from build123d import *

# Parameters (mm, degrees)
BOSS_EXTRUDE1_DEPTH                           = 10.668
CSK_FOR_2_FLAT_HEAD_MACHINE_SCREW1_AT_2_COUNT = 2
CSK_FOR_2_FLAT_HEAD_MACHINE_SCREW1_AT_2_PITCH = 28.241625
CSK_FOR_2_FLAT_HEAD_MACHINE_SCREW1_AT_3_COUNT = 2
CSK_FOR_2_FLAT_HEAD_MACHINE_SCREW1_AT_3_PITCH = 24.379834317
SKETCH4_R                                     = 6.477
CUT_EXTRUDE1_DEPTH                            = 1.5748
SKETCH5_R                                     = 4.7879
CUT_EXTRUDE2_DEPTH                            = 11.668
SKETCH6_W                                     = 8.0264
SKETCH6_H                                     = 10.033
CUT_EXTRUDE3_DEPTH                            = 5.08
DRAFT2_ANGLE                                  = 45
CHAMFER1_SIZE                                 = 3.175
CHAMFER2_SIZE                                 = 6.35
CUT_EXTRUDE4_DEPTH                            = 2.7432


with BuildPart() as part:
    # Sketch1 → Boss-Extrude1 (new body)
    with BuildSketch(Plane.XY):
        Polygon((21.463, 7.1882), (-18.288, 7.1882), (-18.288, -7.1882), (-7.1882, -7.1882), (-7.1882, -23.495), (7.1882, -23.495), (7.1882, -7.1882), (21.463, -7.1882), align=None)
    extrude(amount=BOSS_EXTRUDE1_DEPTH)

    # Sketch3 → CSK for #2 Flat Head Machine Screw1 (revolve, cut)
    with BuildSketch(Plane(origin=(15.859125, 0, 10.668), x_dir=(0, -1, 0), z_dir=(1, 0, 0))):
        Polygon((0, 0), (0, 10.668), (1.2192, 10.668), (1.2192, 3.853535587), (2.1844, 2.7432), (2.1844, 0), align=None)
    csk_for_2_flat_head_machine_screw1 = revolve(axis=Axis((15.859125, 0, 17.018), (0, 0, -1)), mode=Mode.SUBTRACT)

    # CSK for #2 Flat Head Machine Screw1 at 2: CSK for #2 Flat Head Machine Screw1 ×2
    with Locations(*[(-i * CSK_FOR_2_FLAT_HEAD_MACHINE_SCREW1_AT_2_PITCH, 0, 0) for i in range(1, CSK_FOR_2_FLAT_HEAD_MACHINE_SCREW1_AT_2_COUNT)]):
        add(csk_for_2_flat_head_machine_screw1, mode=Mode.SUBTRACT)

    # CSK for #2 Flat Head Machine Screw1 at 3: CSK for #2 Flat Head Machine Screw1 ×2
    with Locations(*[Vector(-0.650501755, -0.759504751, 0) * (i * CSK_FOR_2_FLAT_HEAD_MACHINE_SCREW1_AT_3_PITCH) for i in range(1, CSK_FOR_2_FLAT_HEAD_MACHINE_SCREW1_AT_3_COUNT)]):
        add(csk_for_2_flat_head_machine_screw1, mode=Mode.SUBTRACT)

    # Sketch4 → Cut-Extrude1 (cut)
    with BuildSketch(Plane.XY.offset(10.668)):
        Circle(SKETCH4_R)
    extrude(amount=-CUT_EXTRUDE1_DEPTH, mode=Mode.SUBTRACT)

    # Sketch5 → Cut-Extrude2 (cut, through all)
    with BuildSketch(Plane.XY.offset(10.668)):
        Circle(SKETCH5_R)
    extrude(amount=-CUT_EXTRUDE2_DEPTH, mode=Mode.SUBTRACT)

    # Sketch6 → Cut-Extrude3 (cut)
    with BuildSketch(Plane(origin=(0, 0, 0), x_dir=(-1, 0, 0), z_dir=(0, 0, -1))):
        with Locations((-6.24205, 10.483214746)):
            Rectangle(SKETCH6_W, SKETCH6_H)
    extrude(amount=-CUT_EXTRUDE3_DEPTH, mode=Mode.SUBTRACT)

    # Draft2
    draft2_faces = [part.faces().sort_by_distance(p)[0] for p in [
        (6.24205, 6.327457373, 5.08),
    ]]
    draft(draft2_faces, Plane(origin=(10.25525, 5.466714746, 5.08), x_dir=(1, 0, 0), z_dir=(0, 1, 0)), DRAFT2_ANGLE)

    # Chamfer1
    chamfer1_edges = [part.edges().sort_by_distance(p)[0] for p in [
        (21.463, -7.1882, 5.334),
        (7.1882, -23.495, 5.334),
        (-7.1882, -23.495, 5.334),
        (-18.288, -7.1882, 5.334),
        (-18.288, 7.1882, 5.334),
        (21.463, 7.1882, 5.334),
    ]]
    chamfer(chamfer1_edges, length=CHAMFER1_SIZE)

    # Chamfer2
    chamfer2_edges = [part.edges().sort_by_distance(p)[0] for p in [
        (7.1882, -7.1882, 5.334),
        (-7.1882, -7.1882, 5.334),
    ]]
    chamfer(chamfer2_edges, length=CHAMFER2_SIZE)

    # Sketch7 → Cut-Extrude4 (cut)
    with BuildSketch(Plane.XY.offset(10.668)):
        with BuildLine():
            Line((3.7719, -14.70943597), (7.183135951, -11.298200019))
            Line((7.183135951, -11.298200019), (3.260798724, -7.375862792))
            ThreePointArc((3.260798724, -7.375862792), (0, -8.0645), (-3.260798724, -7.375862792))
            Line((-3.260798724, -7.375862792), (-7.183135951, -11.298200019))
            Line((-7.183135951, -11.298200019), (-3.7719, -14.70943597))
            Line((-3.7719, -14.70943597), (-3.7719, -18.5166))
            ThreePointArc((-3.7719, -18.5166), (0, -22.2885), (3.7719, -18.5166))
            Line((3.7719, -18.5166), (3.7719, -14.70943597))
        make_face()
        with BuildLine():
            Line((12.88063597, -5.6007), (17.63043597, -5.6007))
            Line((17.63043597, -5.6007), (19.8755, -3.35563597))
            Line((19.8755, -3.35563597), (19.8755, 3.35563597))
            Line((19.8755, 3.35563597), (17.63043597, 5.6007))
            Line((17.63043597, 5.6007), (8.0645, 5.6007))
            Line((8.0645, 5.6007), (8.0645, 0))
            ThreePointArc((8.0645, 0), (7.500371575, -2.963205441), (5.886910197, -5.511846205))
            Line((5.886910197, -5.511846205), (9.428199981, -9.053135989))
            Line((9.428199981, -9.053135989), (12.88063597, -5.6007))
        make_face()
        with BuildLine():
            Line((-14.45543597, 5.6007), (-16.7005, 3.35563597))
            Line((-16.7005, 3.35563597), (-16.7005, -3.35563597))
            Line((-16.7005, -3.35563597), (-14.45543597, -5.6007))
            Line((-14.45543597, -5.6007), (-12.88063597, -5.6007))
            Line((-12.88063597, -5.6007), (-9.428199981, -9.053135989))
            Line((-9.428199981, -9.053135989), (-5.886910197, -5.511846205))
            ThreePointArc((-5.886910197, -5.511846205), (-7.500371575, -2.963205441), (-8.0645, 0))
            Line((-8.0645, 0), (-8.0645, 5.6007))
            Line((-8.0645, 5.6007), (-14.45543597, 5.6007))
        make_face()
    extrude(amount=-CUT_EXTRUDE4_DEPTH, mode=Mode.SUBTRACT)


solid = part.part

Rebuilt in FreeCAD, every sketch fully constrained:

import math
import FreeCAD as App
import Part
import Sketcher
from FreeCAD import Vector
Q = App.Units.Quantity


def edges_at(feature, points):
    """Names of the edges that pass closest to the given points."""
    edges = feature.Shape.Edges
    near = lambda p: min(range(len(edges)), key=lambda i: edges[i].distToShape(Part.Vertex(*p))[0])
    return sorted({f"Edge{near(p) + 1}" for p in points})


def faces_at(feature, points):
    """Names of the faces that lie closest to the given points."""
    faces = feature.Shape.Faces
    near = lambda p: min(range(len(faces)), key=lambda i: faces[i].distToShape(Part.Vertex(*p))[0])
    return sorted({f"Face{near(p) + 1}" for p in points})

doc = App.newDocument("Part")
body = doc.addObject("PartDesign::Body", "Body")

# Sketch on XY plane
sketch1 = body.newObject("Sketcher::SketchObject", "Sketch")
sketch1.AttachmentSupport = (doc.getObject("XY_Plane"), [""])
sketch1.MapMode = "FlatFace"
sketch1.addGeometry(Part.LineSegment(Vector(21.463, 7.1882, 0), Vector(-18.288, 7.1882, 0)), False)
sketch1.addGeometry(Part.LineSegment(Vector(-18.288, 7.1882, 0), Vector(-18.288, -7.1882, 0)), False)
sketch1.addGeometry(Part.LineSegment(Vector(-18.288, -7.1882, 0), Vector(-7.1882, -7.1882, 0)), False)
sketch1.addGeometry(Part.LineSegment(Vector(-7.1882, -7.1882, 0), Vector(-7.1882, -23.495, 0)), False)
sketch1.addGeometry(Part.LineSegment(Vector(-7.1882, -23.495, 0), Vector(7.1882, -23.495, 0)), False)
sketch1.addGeometry(Part.LineSegment(Vector(7.1882, -23.495, 0), Vector(7.1882, -7.1882, 0)), False)
sketch1.addGeometry(Part.LineSegment(Vector(7.1882, -7.1882, 0), Vector(21.463, -7.1882, 0)), False)
sketch1.addGeometry(Part.LineSegment(Vector(21.463, -7.1882, 0), Vector(21.463, 7.1882, 0)), False)
sketch1.addConstraint(Sketcher.Constraint("Coincident", 0, 2, 1, 1))
sketch1.addConstraint(Sketcher.Constraint("Coincident", 1, 2, 2, 1))
sketch1.addConstraint(Sketcher.Constraint("Coincident", 2, 2, 3, 1))
sketch1.addConstraint(Sketcher.Constraint("Coincident", 3, 2, 4, 1))
sketch1.addConstraint(Sketcher.Constraint("Coincident", 4, 2, 5, 1))
sketch1.addConstraint(Sketcher.Constraint("Coincident", 5, 2, 6, 1))
sketch1.addConstraint(Sketcher.Constraint("Coincident", 6, 2, 7, 1))
sketch1.addConstraint(Sketcher.Constraint("Coincident", 7, 2, 0, 1))
sketch1.addConstraint(Sketcher.Constraint("Horizontal", 0))
sketch1.addConstraint(Sketcher.Constraint("Vertical", 1))
sketch1.addConstraint(Sketcher.Constraint("Horizontal", 2))
sketch1.addConstraint(Sketcher.Constraint("Vertical", 3))
sketch1.addConstraint(Sketcher.Constraint("Horizontal", 4))
sketch1.addConstraint(Sketcher.Constraint("Vertical", 5))
sketch1.addConstraint(Sketcher.Constraint("Horizontal", 6))
sketch1.addConstraint(Sketcher.Constraint("Vertical", 7))
sketch1.addConstraint(Sketcher.Constraint("Symmetric", 2, 2, 5, 2, -2))
sketch1.addConstraint(Sketcher.Constraint("Equal", 4, 1))
sketch1.addConstraint(Sketcher.Constraint("DistanceX", 0, 2, 0, 1, Q("1.565 in")))
sketch1.addConstraint(Sketcher.Constraint("DistanceX", 2, 1, 2, 2, Q("0.437 in")))
sketch1.addConstraint(Sketcher.Constraint("DistanceX", 4, 1, 4, 2, Q("0.566 in")))
sketch1.addConstraint(Sketcher.Constraint("DistanceY", 3, 2, 3, 1, Q("0.642 in")))
sketch1.addConstraint(Sketcher.Constraint("DistanceY", -1, 1, 0, 2, Q("0.283 in")))
pad1 = body.newObject("PartDesign::Pad", "Pad")
pad1.Profile = sketch1
pad1.Length = Q("0.42 in")

# Sketch on YZ plane
sketch2 = body.newObject("Sketcher::SketchObject", "Sketch001")
sketch2.AttachmentSupport = (doc.getObject("YZ_Plane"), [""])
sketch2.MapMode = "FlatFace"
sketch2.AttachmentOffset = App.Placement(Vector(0, 0, 15.859125), App.Rotation())
sketch2.addGeometry(Part.LineSegment(Vector(0, 0, 0), Vector(0, 10.668, 0)), False)
sketch2.addGeometry(Part.LineSegment(Vector(0, 10.668, 0), Vector(-2.1844, 10.668, 0)), False)
sketch2.addGeometry(Part.LineSegment(Vector(-2.1844, 10.668, 0), Vector(-2.1844, 7.9248, 0)), False)
sketch2.addGeometry(Part.LineSegment(Vector(-2.1844, 7.9248, 0), Vector(-1.2192, 6.814464, 0)), False)
sketch2.addGeometry(Part.LineSegment(Vector(-1.2192, 6.814464, 0), Vector(-1.2192, 0, 0)), False)
sketch2.addGeometry(Part.LineSegment(Vector(-1.2192, 0, 0), Vector(0, 0, 0)), False)
sketch2.addConstraint(Sketcher.Constraint("Coincident", 0, 2, 1, 1))
sketch2.addConstraint(Sketcher.Constraint("Coincident", 1, 2, 2, 1))
sketch2.addConstraint(Sketcher.Constraint("Coincident", 2, 2, 3, 1))
sketch2.addConstraint(Sketcher.Constraint("Coincident", 3, 2, 4, 1))
sketch2.addConstraint(Sketcher.Constraint("Coincident", 4, 2, 5, 1))
sketch2.addConstraint(Sketcher.Constraint("Coincident", 5, 2, 0, 1))
sketch2.addConstraint(Sketcher.Constraint("Vertical", 0))
sketch2.addConstraint(Sketcher.Constraint("Horizontal", 1))
sketch2.addConstraint(Sketcher.Constraint("Vertical", 2))
sketch2.addConstraint(Sketcher.Constraint("Vertical", 4))
sketch2.addConstraint(Sketcher.Constraint("Horizontal", 5))
sketch2.addConstraint(Sketcher.Constraint("Coincident", 5, 2, -1, 1))
sketch2.addConstraint(Sketcher.Constraint("Angle", 3, Q("-49 deg")))
sketch2.addConstraint(Sketcher.Constraint("DistanceY", 0, 1, 0, 2, Q("0.42 in")))
sketch2.addConstraint(Sketcher.Constraint("DistanceX", 1, 2, 1, 1, Q("0.086 in")))
sketch2.addConstraint(Sketcher.Constraint("DistanceX", 5, 1, 5, 2, Q("0.048 in")))
sketch2.addConstraint(Sketcher.Constraint("DistanceY", 2, 2, 2, 1, Q("0.108 in")))
groove = body.newObject("PartDesign::Groove", "Groove")
groove.Profile = sketch2
groove.ReferenceAxis = (sketch2, ["V_Axis"])
groove.Angle = 360
doc.recompute()

linearpattern = body.newObject("PartDesign::LinearPattern", "LinearPattern")
linearpattern.Originals = [groove]
linearpattern.Direction = (doc.getObject("X_Axis"), [""])
linearpattern.Mode = "offset"
linearpattern.Offset = 28.241625
linearpattern.Occurrences = 2
linearpattern.Reversed = True
body.Tip = linearpattern
doc.recompute()

datumline = body.newObject("PartDesign::Line", "DatumLine")
datumline.Placement = App.Placement(Vector(0, 0, 0), App.Rotation(Vector(0, 0, 1), Vector(-0.650501755, -0.759504751, 0)))
linearpattern2 = body.newObject("PartDesign::LinearPattern", "LinearPattern001")
linearpattern2.Originals = [groove]
linearpattern2.Direction = (datumline, [""])
linearpattern2.Mode = "offset"
linearpattern2.Offset = 24.379834
linearpattern2.Occurrences = 2
body.Tip = linearpattern2

# Sketch on XY plane
sketch3 = body.newObject("Sketcher::SketchObject", "Sketch002")
sketch3.AttachmentSupport = (doc.getObject("XY_Plane"), [""])
sketch3.MapMode = "FlatFace"
sketch3.AttachmentOffset = App.Placement(Vector(0, 0, 0.42 * 25.4), App.Rotation())
sketch3.addGeometry(Part.Circle(Vector(0, 0, 0), Vector(0, 0, 1), 6.477), False)
sketch3.addConstraint(Sketcher.Constraint("Coincident", 0, 3, -1, 1))
sketch3.addConstraint(Sketcher.Constraint("Diameter", 0, Q("0.51 in")))
pocket1 = body.newObject("PartDesign::Pocket", "Pocket")
pocket1.Profile = sketch3
pocket1.Length = Q("0.062 in")

# Sketch on XY plane
sketch4 = body.newObject("Sketcher::SketchObject", "Sketch003")
sketch4.AttachmentSupport = (doc.getObject("XY_Plane"), [""])
sketch4.MapMode = "FlatFace"
sketch4.AttachmentOffset = App.Placement(Vector(0, 0, 0.42 * 25.4), App.Rotation())
sketch4.addGeometry(Part.Circle(Vector(0, 0, 0), Vector(0, 0, 1), 4.7879), False)
sketch4.addConstraint(Sketcher.Constraint("Coincident", 0, 3, -1, 1))
sketch4.addConstraint(Sketcher.Constraint("Diameter", 0, Q("0.377 in")))
pocket2 = body.newObject("PartDesign::Pocket", "Pocket001")
pocket2.Profile = sketch4
pocket2.Type = "ThroughAll"

# Sketch on XY plane
sketch5 = body.newObject("Sketcher::SketchObject", "Sketch004")
sketch5.AttachmentSupport = (doc.getObject("XY_Plane"), [""])
sketch5.MapMode = "FlatFace"
sketch5.addGeometry(Part.LineSegment(Vector(10.25525, 15.499715, 0), Vector(10.25525, 5.466715, 0)), False)
sketch5.addGeometry(Part.LineSegment(Vector(10.25525, 5.466715, 0), Vector(2.22885, 5.466715, 0)), False)
sketch5.addGeometry(Part.LineSegment(Vector(2.22885, 5.466715, 0), Vector(2.22885, 15.499715, 0)), False)
sketch5.addGeometry(Part.LineSegment(Vector(2.22885, 15.499715, 0), Vector(10.25525, 15.499715, 0)), False)
sketch5.addConstraint(Sketcher.Constraint("Coincident", 0, 2, 1, 1))
sketch5.addConstraint(Sketcher.Constraint("Coincident", 1, 2, 2, 1))
sketch5.addConstraint(Sketcher.Constraint("Coincident", 2, 2, 3, 1))
sketch5.addConstraint(Sketcher.Constraint("Coincident", 3, 2, 0, 1))
sketch5.addConstraint(Sketcher.Constraint("Vertical", 0))
sketch5.addConstraint(Sketcher.Constraint("Horizontal", 1))
sketch5.addConstraint(Sketcher.Constraint("Vertical", 2))
sketch5.addConstraint(Sketcher.Constraint("Horizontal", 3))
sketch5.addConstraint(Sketcher.Constraint("DistanceX", 1, 2, 1, 1, Q("0.316 in")))
sketch5.addConstraint(Sketcher.Constraint("DistanceY", 0, 2, 0, 1, Q("0.395 in")))
sketch5.addConstraint(Sketcher.Constraint("DistanceX", -1, 1, 0, 2, Q("10.25525 mm")))
sketch5.addConstraint(Sketcher.Constraint("DistanceY", -1, 1, 0, 2, Q("5.466715 mm")))
pocket3 = body.newObject("PartDesign::Pocket", "Pocket002")
pocket3.Profile = sketch5
pocket3.Length = Q("0.2 in")
pocket3.Reversed = True
doc.recompute()

datumplane = body.newObject("PartDesign::Plane", "DatumPlane")
datumplane.AttachmentSupport = (doc.getObject("XZ_Plane"), [""])
datumplane.MapMode = "FlatFace"
datumplane.AttachmentOffset = App.Placement(Vector(0, 0, -5.466715), App.Rotation())
draft = body.newObject("PartDesign::Draft", "Draft")
draft.Base = (pocket3, faces_at(pocket3, [(6.242, 6.327, 5.08)]))
draft.NeutralPlane = (datumplane, [""])
draft.Angle = 45
draft.Reversed = True
doc.recompute()

chamfer = body.newObject("PartDesign::Chamfer", "Chamfer")
chamfer.Base = (draft, edges_at(draft, [
    (21.463, -7.188, 5.334),
    (7.188, -23.495, 5.334),
    (-7.188, -23.495, 5.334),
    (-18.288, -7.188, 5.334),
    (-18.288, 7.188, 5.334),
    (21.463, 7.188, 5.334),
]))
chamfer.Size = Q("0.125 in")
doc.recompute()

chamfer2 = body.newObject("PartDesign::Chamfer", "Chamfer001")
chamfer2.Base = (chamfer, edges_at(chamfer, [(7.188, -7.188, 5.334), (-7.188, -7.188, 5.334)]))
chamfer2.Size = Q("0.25 in")

# Sketch on XY plane
sketch6 = body.newObject("Sketcher::SketchObject", "Sketch005")
sketch6.AttachmentSupport = (doc.getObject("XY_Plane"), [""])
sketch6.MapMode = "FlatFace"
sketch6.AttachmentOffset = App.Placement(Vector(0, 0, 0.42 * 25.4), App.Rotation())
sketch6.addGeometry(Part.LineSegment(Vector(3.7719, -14.709436, 0), Vector(7.183136, -11.2982, 0)), False)
sketch6.addGeometry(Part.LineSegment(Vector(7.183136, -11.2982, 0), Vector(3.260799, -7.375863, 0)), False)
sketch6.addGeometry(Part.ArcOfCircle(Part.Circle(Vector(0, 0, 0), Vector(0, 0, 1), 8.0645), math.radians(-113.849765), math.radians(-66.150235)), False)
sketch6.addGeometry(Part.LineSegment(Vector(-3.260799, -7.375863, 0), Vector(-7.183136, -11.2982, 0)), False)
sketch6.addGeometry(Part.LineSegment(Vector(-7.183136, -11.2982, 0), Vector(-3.7719, -14.709436, 0)), False)
sketch6.addGeometry(Part.LineSegment(Vector(-3.7719, -14.709436, 0), Vector(-3.7719, -18.5166, 0)), False)
sketch6.addGeometry(Part.ArcOfCircle(Part.Circle(Vector(0, -18.5166, 0), Vector(0, 0, 1), 3.7719), math.radians(180), math.radians(360)), False)
sketch6.addGeometry(Part.LineSegment(Vector(3.7719, -18.5166, 0), Vector(3.7719, -14.709436, 0)), False)
sketch6.addGeometry(Part.LineSegment(Vector(12.880636, -5.6007, 0), Vector(17.630436, -5.6007, 0)), False)
sketch6.addGeometry(Part.LineSegment(Vector(17.630436, -5.6007, 0), Vector(19.8755, -3.355636, 0)), False)
sketch6.addGeometry(Part.LineSegment(Vector(19.8755, -3.355636, 0), Vector(19.8755, 3.355636, 0)), False)
sketch6.addGeometry(Part.LineSegment(Vector(19.8755, 3.355636, 0), Vector(17.630436, 5.6007, 0)), False)
sketch6.addGeometry(Part.LineSegment(Vector(17.630436, 5.6007, 0), Vector(8.0645, 5.6007, 0)), False)
sketch6.addGeometry(Part.LineSegment(Vector(8.0645, 5.6007, 0), Vector(8.0645, 0, 0)), False)
sketch6.addGeometry(Part.ArcOfCircle(Part.Circle(Vector(0, 0, 0), Vector(0, 0, 1), 8.0645), math.radians(-43.115423), math.radians(0)), False)
sketch6.addGeometry(Part.LineSegment(Vector(5.88691, -5.511846, 0), Vector(9.4282, -9.053136, 0)), False)
sketch6.addGeometry(Part.LineSegment(Vector(9.4282, -9.053136, 0), Vector(12.880636, -5.6007, 0)), False)
sketch6.addGeometry(Part.LineSegment(Vector(-14.455436, 5.6007, 0), Vector(-16.7005, 3.355636, 0)), False)
sketch6.addGeometry(Part.LineSegment(Vector(-16.7005, 3.355636, 0), Vector(-16.7005, -3.355636, 0)), False)
sketch6.addGeometry(Part.LineSegment(Vector(-16.7005, -3.355636, 0), Vector(-14.455436, -5.6007, 0)), False)
sketch6.addGeometry(Part.LineSegment(Vector(-14.455436, -5.6007, 0), Vector(-12.880636, -5.6007, 0)), False)
sketch6.addGeometry(Part.LineSegment(Vector(-12.880636, -5.6007, 0), Vector(-9.4282, -9.053136, 0)), False)
sketch6.addGeometry(Part.LineSegment(Vector(-9.4282, -9.053136, 0), Vector(-5.88691, -5.511846, 0)), False)
sketch6.addGeometry(Part.ArcOfCircle(Part.Circle(Vector(0, 0, 0), Vector(0, 0, 1), 8.0645), math.radians(-180), math.radians(-136.884577)), False)
sketch6.addGeometry(Part.LineSegment(Vector(-8.0645, 0, 0), Vector(-8.0645, 5.6007, 0)), False)
sketch6.addGeometry(Part.LineSegment(Vector(-8.0645, 5.6007, 0), Vector(-14.455436, 5.6007, 0)), False)
sketch6.addConstraint(Sketcher.Constraint("Coincident", 0, 2, 1, 1))
sketch6.addConstraint(Sketcher.Constraint("Coincident", 1, 2, 2, 2))
sketch6.addConstraint(Sketcher.Constraint("Coincident", 2, 1, 3, 1))
sketch6.addConstraint(Sketcher.Constraint("Coincident", 3, 2, 4, 1))
sketch6.addConstraint(Sketcher.Constraint("Coincident", 4, 2, 5, 1))
sketch6.addConstraint(Sketcher.Constraint("Tangent", 5, 2, 6, 1))
sketch6.addConstraint(Sketcher.Constraint("Tangent", 6, 2, 7, 1))
sketch6.addConstraint(Sketcher.Constraint("Coincident", 7, 2, 0, 1))
sketch6.addConstraint(Sketcher.Constraint("Coincident", 8, 2, 9, 1))
sketch6.addConstraint(Sketcher.Constraint("Coincident", 9, 2, 10, 1))
sketch6.addConstraint(Sketcher.Constraint("Coincident", 10, 2, 11, 1))
sketch6.addConstraint(Sketcher.Constraint("Coincident", 11, 2, 12, 1))
sketch6.addConstraint(Sketcher.Constraint("Coincident", 12, 2, 13, 1))
sketch6.addConstraint(Sketcher.Constraint("Tangent", 13, 2, 14, 2))
sketch6.addConstraint(Sketcher.Constraint("Coincident", 14, 1, 15, 1))
sketch6.addConstraint(Sketcher.Constraint("Coincident", 15, 2, 16, 1))
sketch6.addConstraint(Sketcher.Constraint("Coincident", 16, 2, 8, 1))
sketch6.addConstraint(Sketcher.Constraint("Coincident", 17, 2, 18, 1))
sketch6.addConstraint(Sketcher.Constraint("Coincident", 18, 2, 19, 1))
sketch6.addConstraint(Sketcher.Constraint("Coincident", 19, 2, 20, 1))
sketch6.addConstraint(Sketcher.Constraint("Coincident", 20, 2, 21, 1))
sketch6.addConstraint(Sketcher.Constraint("Coincident", 21, 2, 22, 1))
sketch6.addConstraint(Sketcher.Constraint("Coincident", 22, 2, 23, 2))
sketch6.addConstraint(Sketcher.Constraint("Tangent", 23, 1, 24, 1))
sketch6.addConstraint(Sketcher.Constraint("Coincident", 24, 2, 25, 1))
sketch6.addConstraint(Sketcher.Constraint("Coincident", 25, 2, 17, 1))
sketch6.addConstraint(Sketcher.Constraint("Vertical", 5))
sketch6.addConstraint(Sketcher.Constraint("Vertical", 7))
sketch6.addConstraint(Sketcher.Constraint("Horizontal", 8))
sketch6.addConstraint(Sketcher.Constraint("Vertical", 10))
sketch6.addConstraint(Sketcher.Constraint("Horizontal", 12))
sketch6.addConstraint(Sketcher.Constraint("Vertical", 13))
sketch6.addConstraint(Sketcher.Constraint("Vertical", 18))
sketch6.addConstraint(Sketcher.Constraint("Horizontal", 20))
sketch6.addConstraint(Sketcher.Constraint("Vertical", 24))
sketch6.addConstraint(Sketcher.Constraint("Horizontal", 25))
sketch6.addConstraint(Sketcher.Constraint("Coincident", 2, 3, -1, 1))
sketch6.addConstraint(Sketcher.Constraint("Coincident", 14, 3, -1, 1))
sketch6.addConstraint(Sketcher.Constraint("Coincident", 23, 3, -1, 1))
sketch6.addConstraint(Sketcher.Constraint("Equal", 2, 14))
sketch6.addConstraint(Sketcher.Constraint("Equal", 14, 23))
sketch6.addConstraint(Sketcher.Constraint("Symmetric", 0, 2, 3, 2, -2))
sketch6.addConstraint(Sketcher.Constraint("Symmetric", 4, 2, 7, 2, -2))
sketch6.addConstraint(Sketcher.Constraint("Symmetric", 16, 2, 20, 2, -2))
sketch6.addConstraint(Sketcher.Constraint("Symmetric", 15, 2, 21, 2, -2))
sketch6.addConstraint(Sketcher.Constraint("Symmetric", 8, 2, 11, 2, -1))
sketch6.addConstraint(Sketcher.Constraint("Symmetric", 19, 2, 25, 2, -1))
sketch6.addConstraint(Sketcher.Constraint("Perpendicular", 0, 1))
sketch6.addConstraint(Sketcher.Constraint("Perpendicular", 1, 3))
sketch6.addConstraint(Sketcher.Constraint("Perpendicular", 3, 4))
sketch6.addConstraint(Sketcher.Constraint("Perpendicular", 4, 9))
sketch6.addConstraint(Sketcher.Constraint("Perpendicular", 9, 11))
sketch6.addConstraint(Sketcher.Constraint("Parallel", 11, 15))
sketch6.addConstraint(Sketcher.Constraint("Perpendicular", 15, 16))
sketch6.addConstraint(Sketcher.Constraint("Parallel", 16, 17))
sketch6.addConstraint(Sketcher.Constraint("Perpendicular", 17, 19))
sketch6.addConstraint(Sketcher.Constraint("Perpendicular", 21, 22))
sketch6.addConstraint(Sketcher.Constraint("Horizontal", 10, 2, 17, 2))
sketch6.addConstraint(Sketcher.Constraint("Radius", 2, Q("0.3175 in")))
sketch6.addConstraint(Sketcher.Constraint("Radius", 6, Q("0.1485 in")))
sketch6.addConstraint(Sketcher.Constraint("DistanceX", 8, 1, 8, 2, Q("0.187 in")))
sketch6.addConstraint(Sketcher.Constraint("DistanceX", 20, 1, 20, 2, Q("0.062 in")))
sketch6.addConstraint(Sketcher.Constraint("DistanceX", 17, 2, 24, 2, Q("0.34 in")))
sketch6.addConstraint(Sketcher.Constraint("Distance", 9, Q("0.125 in")))
sketch6.addConstraint(Sketcher.Constraint("DistanceY", 13, 2, 13, 1, Q("0.2205 in")))
sketch6.addConstraint(Sketcher.Constraint("DistanceY", 6, 3, -1, 1, Q("0.729 in")))
sketch6.addConstraint(Sketcher.Constraint("DistanceY", 7, 2, 9, 2, Q("0.447 in")))
sketch6.addConstraint(Sketcher.Constraint("DistanceY", 1, 2, 10, 2, Q("0.4225 in")))
sketch6.addConstraint(Sketcher.Constraint("DistanceX", -1, 1, 15, 2, Q("9.4282 mm")))
pocket4 = body.newObject("PartDesign::Pocket", "Pocket003")
pocket4.Profile = sketch6
pocket4.Length = Q("0.108 in")

doc.recompute()
